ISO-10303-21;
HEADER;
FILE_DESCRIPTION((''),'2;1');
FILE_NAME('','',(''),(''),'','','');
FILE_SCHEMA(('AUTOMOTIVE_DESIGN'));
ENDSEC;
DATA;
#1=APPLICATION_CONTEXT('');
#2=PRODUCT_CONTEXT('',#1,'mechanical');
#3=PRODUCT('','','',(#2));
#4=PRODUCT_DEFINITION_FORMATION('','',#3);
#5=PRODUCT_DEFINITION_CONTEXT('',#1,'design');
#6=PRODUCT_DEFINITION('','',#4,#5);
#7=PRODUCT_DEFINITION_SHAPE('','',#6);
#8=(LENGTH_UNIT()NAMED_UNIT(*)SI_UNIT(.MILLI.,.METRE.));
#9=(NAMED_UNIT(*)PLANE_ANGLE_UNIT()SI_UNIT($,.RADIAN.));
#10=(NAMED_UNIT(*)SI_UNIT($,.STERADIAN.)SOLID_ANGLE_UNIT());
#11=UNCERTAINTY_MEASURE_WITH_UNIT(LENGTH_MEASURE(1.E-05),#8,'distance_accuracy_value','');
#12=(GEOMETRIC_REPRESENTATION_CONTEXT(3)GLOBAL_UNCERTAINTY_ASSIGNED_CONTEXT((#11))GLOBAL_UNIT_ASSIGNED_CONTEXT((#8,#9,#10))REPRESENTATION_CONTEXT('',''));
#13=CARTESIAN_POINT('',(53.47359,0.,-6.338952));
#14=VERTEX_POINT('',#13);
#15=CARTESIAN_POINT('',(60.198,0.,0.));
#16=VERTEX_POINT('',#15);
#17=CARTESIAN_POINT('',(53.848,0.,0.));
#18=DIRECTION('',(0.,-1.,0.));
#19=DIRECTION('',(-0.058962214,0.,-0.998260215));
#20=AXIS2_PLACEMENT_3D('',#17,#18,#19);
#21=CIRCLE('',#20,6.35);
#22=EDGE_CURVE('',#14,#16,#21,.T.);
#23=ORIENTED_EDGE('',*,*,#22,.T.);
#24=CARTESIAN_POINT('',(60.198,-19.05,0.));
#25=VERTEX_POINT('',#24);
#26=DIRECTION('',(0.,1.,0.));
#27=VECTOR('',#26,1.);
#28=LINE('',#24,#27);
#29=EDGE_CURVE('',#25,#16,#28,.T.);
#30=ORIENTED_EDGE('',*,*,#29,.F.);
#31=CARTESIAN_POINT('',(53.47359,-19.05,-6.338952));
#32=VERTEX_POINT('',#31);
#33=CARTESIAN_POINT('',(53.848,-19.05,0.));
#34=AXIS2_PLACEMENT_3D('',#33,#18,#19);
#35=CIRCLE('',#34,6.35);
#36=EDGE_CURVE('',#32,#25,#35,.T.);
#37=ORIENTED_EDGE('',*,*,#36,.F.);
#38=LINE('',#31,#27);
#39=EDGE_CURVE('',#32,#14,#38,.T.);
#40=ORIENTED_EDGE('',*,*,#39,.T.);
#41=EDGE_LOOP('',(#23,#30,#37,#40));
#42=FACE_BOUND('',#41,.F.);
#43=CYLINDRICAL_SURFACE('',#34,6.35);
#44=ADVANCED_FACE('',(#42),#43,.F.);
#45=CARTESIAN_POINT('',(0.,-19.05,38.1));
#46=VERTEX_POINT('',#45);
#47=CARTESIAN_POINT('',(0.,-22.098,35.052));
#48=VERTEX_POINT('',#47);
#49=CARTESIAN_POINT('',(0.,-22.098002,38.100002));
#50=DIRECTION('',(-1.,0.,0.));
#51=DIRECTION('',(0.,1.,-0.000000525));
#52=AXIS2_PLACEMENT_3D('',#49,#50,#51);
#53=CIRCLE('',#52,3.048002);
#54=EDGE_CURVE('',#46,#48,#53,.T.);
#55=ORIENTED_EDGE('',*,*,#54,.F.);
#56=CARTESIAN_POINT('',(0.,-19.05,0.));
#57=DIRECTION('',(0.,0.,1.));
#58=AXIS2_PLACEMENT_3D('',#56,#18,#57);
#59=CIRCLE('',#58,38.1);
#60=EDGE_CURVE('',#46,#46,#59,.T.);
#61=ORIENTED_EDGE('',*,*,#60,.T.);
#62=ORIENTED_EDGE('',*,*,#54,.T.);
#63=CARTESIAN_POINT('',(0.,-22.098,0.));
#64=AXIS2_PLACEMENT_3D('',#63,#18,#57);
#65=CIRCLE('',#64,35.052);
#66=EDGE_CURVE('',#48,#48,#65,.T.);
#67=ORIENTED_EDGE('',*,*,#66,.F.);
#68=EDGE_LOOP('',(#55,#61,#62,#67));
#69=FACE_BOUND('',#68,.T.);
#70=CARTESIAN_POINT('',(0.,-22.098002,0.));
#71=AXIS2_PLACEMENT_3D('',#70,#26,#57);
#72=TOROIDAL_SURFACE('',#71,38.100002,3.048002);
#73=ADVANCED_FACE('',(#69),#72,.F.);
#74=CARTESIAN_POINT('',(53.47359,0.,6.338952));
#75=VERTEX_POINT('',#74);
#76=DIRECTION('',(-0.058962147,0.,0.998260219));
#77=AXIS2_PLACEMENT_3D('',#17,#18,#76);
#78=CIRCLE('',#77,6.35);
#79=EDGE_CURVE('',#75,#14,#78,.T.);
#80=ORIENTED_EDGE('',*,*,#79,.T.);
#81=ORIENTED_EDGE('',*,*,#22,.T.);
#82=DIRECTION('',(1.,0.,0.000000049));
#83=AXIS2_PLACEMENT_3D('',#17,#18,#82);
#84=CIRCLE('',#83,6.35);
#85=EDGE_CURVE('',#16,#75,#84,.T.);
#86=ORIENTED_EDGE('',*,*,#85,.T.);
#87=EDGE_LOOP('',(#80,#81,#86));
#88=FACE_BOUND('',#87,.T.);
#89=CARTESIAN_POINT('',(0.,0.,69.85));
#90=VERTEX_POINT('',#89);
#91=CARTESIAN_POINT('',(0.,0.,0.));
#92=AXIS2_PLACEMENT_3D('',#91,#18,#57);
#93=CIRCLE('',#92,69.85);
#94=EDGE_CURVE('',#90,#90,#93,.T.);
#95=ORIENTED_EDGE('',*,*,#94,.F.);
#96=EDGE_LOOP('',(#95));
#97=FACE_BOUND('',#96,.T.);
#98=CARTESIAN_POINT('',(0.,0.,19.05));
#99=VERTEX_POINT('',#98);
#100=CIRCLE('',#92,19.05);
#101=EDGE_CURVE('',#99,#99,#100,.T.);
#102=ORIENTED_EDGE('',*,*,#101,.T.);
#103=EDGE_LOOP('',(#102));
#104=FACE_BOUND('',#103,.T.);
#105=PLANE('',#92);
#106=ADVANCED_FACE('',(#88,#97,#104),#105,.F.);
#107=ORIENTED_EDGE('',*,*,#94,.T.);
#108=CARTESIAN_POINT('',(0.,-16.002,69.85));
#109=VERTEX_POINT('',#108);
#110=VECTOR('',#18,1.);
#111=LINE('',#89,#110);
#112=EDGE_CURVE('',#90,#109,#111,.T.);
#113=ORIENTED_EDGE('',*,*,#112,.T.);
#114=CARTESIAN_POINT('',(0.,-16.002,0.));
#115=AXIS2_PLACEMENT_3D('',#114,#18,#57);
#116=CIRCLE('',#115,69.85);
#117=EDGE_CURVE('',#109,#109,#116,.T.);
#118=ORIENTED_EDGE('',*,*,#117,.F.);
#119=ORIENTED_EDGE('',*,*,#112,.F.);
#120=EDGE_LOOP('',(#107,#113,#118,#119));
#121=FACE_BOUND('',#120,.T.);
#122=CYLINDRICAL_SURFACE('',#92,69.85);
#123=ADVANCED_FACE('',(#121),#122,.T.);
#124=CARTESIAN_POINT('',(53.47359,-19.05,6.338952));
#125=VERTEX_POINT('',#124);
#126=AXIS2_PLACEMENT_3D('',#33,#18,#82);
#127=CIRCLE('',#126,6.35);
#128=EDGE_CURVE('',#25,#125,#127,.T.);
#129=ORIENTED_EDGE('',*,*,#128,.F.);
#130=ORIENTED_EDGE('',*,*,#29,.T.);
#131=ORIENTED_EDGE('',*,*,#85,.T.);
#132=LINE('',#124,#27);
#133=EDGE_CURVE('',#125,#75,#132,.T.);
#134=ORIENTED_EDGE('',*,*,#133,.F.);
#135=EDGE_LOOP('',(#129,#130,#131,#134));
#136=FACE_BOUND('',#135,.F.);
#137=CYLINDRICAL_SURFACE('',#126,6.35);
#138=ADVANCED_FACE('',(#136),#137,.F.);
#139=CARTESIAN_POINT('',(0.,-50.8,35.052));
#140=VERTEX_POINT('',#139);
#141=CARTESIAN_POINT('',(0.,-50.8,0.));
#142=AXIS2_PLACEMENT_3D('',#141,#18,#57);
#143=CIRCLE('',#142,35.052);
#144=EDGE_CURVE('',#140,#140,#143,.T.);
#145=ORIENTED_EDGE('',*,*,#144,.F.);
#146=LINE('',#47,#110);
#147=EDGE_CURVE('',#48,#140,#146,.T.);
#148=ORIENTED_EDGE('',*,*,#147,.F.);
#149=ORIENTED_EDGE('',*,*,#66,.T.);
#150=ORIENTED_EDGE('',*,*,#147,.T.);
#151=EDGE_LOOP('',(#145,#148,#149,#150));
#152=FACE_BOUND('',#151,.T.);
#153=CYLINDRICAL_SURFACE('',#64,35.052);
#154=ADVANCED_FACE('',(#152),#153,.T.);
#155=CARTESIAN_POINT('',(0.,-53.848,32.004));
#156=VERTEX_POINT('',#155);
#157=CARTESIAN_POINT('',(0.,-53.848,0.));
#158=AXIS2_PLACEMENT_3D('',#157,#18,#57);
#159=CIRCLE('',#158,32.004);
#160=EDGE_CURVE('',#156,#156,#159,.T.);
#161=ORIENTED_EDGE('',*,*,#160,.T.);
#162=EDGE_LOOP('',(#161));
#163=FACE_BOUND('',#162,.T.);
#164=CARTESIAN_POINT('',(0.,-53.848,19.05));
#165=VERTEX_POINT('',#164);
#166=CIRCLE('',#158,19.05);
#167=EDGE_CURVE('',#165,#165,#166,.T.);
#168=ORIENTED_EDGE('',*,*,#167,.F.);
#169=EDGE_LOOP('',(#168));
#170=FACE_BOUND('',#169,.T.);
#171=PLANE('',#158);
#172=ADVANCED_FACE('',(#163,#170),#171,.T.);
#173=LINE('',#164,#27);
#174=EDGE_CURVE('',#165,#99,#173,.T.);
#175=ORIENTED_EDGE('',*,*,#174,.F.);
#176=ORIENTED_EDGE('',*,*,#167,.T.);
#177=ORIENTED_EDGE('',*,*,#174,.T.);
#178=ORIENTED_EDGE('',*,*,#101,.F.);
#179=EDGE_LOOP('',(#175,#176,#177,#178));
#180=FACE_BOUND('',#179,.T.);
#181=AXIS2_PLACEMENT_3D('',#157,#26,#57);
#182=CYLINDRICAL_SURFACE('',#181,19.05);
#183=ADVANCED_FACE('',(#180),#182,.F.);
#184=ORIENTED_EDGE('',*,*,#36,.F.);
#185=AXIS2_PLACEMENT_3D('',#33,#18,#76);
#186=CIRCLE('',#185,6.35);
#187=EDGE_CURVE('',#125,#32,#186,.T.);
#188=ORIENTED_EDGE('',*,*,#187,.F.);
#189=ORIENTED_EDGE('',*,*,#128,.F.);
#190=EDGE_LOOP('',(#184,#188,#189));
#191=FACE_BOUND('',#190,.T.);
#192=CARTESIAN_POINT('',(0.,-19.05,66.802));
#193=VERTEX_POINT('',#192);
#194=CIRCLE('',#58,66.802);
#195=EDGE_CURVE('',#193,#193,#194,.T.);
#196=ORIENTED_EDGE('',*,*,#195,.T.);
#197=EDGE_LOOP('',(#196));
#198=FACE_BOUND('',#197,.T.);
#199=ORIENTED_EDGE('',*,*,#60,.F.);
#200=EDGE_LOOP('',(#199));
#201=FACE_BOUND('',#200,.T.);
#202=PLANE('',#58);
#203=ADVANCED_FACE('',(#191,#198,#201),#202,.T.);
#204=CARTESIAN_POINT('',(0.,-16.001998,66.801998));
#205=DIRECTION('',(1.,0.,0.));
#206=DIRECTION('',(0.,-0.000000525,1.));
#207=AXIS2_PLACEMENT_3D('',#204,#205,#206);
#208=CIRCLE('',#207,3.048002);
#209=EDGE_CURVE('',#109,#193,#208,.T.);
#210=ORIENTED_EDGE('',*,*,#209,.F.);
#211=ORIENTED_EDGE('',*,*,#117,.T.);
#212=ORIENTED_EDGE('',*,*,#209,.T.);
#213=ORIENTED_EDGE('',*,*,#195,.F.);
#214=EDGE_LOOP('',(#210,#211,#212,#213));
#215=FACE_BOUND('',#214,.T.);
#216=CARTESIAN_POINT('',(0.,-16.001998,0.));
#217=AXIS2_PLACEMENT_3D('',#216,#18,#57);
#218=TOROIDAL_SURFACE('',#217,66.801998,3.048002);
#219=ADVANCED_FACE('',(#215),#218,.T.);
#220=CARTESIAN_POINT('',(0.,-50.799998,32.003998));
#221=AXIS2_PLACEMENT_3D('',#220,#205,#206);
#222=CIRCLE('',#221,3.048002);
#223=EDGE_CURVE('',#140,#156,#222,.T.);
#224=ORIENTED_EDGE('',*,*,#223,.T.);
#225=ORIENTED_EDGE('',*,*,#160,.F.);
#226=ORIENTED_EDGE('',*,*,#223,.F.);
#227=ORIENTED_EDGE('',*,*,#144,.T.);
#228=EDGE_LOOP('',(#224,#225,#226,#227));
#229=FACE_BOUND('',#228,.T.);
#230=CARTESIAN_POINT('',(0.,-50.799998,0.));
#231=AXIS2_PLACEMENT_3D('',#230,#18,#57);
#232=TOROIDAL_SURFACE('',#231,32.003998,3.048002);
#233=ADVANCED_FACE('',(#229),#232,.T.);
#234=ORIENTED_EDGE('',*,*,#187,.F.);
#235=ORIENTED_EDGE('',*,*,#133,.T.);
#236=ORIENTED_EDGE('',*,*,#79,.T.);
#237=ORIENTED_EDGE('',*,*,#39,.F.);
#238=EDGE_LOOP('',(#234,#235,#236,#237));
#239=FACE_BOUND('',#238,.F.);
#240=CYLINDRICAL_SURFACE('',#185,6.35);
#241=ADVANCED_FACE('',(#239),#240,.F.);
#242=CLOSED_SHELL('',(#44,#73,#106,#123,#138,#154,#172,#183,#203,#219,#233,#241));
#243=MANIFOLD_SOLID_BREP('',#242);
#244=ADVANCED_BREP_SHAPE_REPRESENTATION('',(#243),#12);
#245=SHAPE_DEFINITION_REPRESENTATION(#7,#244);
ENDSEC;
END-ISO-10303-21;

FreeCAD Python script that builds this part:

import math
import FreeCAD as App
import Part
import Sketcher

V = App.Vector
Q = App.Units.Quantity

doc = App.newDocument("Part")
body = doc.addObject("PartDesign::Body", "Body")

# Sketch on YZ plane
sketch1 = body.newObject("Sketcher::SketchObject", "Sketch")
sketch1.AttachmentSupport = (doc.getObject("YZ_Plane"), [""])
sketch1.MapMode = "FlatFace"
sketch1.addGeometry([
    Part.LineSegment(V(-53.848, 19.05, 0), V(0, 19.05, 0)),  # 0
    Part.LineSegment(V(0, 19.05, 0), V(0, 69.85, 0)),  # 1
    Part.LineSegment(V(0, 69.85, 0), V(-16.002, 69.85, 0)),  # 2
    Part.ArcOfCircle(Part.Circle(V(-16.001998, 66.801998, 0), V(0, 0, 1), 3.048002), math.radians(90.00003), math.radians(179.99997)),  # 3
    Part.LineSegment(V(-19.05, 66.802, 0), V(-19.05, 38.1, 0)),  # 4
    Part.ArcOfCircle(Part.Circle(V(-22.098002, 38.100002, 0), V(0, 0, 1), 3.048002), math.radians(-89.99997), math.radians(-0.00003)),  # 5
    Part.LineSegment(V(-22.098, 35.052, 0), V(-50.8, 35.052, 0)),  # 6
    Part.ArcOfCircle(Part.Circle(V(-50.799998, 32.003998, 0), V(0, 0, 1), 3.048002), math.radians(90.00003), math.radians(179.99997)),  # 7
    Part.LineSegment(V(-53.848, 32.004, 0), V(-53.848, 19.05, 0)),  # 8
], False)
sketch1.addConstraint([
    Sketcher.Constraint("Coincident", 0, 2, 1, 1),
    Sketcher.Constraint("Coincident", 1, 2, 2, 1),
    Sketcher.Constraint("Tangent", 2, 2, 3, 1),
    Sketcher.Constraint("Tangent", 3, 2, 4, 1),
    Sketcher.Constraint("Tangent", 4, 2, 5, 2),
    Sketcher.Constraint("Tangent", 5, 1, 6, 1),
    Sketcher.Constraint("Tangent", 6, 2, 7, 1),
    Sketcher.Constraint("Tangent", 7, 2, 8, 1),
    Sketcher.Constraint("Coincident", 8, 2, 0, 1),
    Sketcher.Constraint("Horizontal", 0),
    Sketcher.Constraint("Vertical", 1),
    Sketcher.Constraint("Horizontal", 2),
    Sketcher.Constraint("Vertical", 4),
    Sketcher.Constraint("Horizontal", 6),
    Sketcher.Constraint("Vertical", 8),
    Sketcher.Constraint("Equal", 3, 5),
    Sketcher.Constraint("Equal", 5, 7),
    Sketcher.Constraint("PointOnObject", 0, 2, -2),
    Sketcher.Constraint("Equal", 6, 4),
    Sketcher.Constraint("DistanceY", 1, 1, 1, 2, Q("2 in")),
    Sketcher.Constraint("Radius", 3, Q("0.1200001 in")),
    Sketcher.Constraint("DistanceX", 7, 3, -1, 1, Q("1.9999999 in")),
    Sketcher.Constraint("DistanceX", 2, 2, 2, 1, Q("0.63 in")),
    Sketcher.Constraint("DistanceY", -1, 1, 5, 3, Q("1.5000001 in")),
])
revolution = body.newObject("PartDesign::Revolution", "Revolution")
revolution.Profile = sketch1
revolution.ReferenceAxis = (sketch1, ["H_Axis"])
revolution.Angle = 360

# Sketch on XZ plane
sketch2 = body.newObject("Sketcher::SketchObject", "Sketch001")
sketch2.AttachmentSupport = (doc.getObject("XZ_Plane"), [""])
sketch2.MapMode = "FlatFace"
sketch2.AttachmentOffset = App.Placement(V(0, 0, 0.75 * 25.4), App.Rotation())
sketch2.addGeometry([
    Part.ArcOfCircle(Part.Circle(V(53.848, 0, 0), V(0, 0, 1), 6.35), math.radians(93.380243), math.radians(266.619757)),
    Part.ArcOfCircle(Part.Circle(V(53.848, 0, 0), V(0, 0, 1), 6.35), math.radians(-93.380247), math.radians(-0.000003)),
    Part.ArcOfCircle(Part.Circle(V(53.848, 0, 0), V(0, 0, 1), 6.35), math.radians(0.000003), math.radians(93.380247)),
], False)
sketch2.addConstraint([
    Sketcher.Constraint("Tangent", 0, 2, 1, 1),
    Sketcher.Constraint("Tangent", 1, 2, 2, 1),
    Sketcher.Constraint("Tangent", 2, 2, 0, 1),
    Sketcher.Constraint("Symmetric", 0, 2, 2, 2, -1),
    Sketcher.Constraint("PointOnObject", 1, 2, -1),
    Sketcher.Constraint("Radius", 0, Q("0.25 in")),
    Sketcher.Constraint("DistanceX", -1, 1, 0, 3, Q("2.12 in")),
    Sketcher.Constraint("DistanceX", -1, 1, 0, 2, 53.47359),
])
pocket1 = body.newObject("PartDesign::Pocket", "Pocket")
pocket1.Profile = sketch2
pocket1.Length = Q("1 in")

doc.recompute()
